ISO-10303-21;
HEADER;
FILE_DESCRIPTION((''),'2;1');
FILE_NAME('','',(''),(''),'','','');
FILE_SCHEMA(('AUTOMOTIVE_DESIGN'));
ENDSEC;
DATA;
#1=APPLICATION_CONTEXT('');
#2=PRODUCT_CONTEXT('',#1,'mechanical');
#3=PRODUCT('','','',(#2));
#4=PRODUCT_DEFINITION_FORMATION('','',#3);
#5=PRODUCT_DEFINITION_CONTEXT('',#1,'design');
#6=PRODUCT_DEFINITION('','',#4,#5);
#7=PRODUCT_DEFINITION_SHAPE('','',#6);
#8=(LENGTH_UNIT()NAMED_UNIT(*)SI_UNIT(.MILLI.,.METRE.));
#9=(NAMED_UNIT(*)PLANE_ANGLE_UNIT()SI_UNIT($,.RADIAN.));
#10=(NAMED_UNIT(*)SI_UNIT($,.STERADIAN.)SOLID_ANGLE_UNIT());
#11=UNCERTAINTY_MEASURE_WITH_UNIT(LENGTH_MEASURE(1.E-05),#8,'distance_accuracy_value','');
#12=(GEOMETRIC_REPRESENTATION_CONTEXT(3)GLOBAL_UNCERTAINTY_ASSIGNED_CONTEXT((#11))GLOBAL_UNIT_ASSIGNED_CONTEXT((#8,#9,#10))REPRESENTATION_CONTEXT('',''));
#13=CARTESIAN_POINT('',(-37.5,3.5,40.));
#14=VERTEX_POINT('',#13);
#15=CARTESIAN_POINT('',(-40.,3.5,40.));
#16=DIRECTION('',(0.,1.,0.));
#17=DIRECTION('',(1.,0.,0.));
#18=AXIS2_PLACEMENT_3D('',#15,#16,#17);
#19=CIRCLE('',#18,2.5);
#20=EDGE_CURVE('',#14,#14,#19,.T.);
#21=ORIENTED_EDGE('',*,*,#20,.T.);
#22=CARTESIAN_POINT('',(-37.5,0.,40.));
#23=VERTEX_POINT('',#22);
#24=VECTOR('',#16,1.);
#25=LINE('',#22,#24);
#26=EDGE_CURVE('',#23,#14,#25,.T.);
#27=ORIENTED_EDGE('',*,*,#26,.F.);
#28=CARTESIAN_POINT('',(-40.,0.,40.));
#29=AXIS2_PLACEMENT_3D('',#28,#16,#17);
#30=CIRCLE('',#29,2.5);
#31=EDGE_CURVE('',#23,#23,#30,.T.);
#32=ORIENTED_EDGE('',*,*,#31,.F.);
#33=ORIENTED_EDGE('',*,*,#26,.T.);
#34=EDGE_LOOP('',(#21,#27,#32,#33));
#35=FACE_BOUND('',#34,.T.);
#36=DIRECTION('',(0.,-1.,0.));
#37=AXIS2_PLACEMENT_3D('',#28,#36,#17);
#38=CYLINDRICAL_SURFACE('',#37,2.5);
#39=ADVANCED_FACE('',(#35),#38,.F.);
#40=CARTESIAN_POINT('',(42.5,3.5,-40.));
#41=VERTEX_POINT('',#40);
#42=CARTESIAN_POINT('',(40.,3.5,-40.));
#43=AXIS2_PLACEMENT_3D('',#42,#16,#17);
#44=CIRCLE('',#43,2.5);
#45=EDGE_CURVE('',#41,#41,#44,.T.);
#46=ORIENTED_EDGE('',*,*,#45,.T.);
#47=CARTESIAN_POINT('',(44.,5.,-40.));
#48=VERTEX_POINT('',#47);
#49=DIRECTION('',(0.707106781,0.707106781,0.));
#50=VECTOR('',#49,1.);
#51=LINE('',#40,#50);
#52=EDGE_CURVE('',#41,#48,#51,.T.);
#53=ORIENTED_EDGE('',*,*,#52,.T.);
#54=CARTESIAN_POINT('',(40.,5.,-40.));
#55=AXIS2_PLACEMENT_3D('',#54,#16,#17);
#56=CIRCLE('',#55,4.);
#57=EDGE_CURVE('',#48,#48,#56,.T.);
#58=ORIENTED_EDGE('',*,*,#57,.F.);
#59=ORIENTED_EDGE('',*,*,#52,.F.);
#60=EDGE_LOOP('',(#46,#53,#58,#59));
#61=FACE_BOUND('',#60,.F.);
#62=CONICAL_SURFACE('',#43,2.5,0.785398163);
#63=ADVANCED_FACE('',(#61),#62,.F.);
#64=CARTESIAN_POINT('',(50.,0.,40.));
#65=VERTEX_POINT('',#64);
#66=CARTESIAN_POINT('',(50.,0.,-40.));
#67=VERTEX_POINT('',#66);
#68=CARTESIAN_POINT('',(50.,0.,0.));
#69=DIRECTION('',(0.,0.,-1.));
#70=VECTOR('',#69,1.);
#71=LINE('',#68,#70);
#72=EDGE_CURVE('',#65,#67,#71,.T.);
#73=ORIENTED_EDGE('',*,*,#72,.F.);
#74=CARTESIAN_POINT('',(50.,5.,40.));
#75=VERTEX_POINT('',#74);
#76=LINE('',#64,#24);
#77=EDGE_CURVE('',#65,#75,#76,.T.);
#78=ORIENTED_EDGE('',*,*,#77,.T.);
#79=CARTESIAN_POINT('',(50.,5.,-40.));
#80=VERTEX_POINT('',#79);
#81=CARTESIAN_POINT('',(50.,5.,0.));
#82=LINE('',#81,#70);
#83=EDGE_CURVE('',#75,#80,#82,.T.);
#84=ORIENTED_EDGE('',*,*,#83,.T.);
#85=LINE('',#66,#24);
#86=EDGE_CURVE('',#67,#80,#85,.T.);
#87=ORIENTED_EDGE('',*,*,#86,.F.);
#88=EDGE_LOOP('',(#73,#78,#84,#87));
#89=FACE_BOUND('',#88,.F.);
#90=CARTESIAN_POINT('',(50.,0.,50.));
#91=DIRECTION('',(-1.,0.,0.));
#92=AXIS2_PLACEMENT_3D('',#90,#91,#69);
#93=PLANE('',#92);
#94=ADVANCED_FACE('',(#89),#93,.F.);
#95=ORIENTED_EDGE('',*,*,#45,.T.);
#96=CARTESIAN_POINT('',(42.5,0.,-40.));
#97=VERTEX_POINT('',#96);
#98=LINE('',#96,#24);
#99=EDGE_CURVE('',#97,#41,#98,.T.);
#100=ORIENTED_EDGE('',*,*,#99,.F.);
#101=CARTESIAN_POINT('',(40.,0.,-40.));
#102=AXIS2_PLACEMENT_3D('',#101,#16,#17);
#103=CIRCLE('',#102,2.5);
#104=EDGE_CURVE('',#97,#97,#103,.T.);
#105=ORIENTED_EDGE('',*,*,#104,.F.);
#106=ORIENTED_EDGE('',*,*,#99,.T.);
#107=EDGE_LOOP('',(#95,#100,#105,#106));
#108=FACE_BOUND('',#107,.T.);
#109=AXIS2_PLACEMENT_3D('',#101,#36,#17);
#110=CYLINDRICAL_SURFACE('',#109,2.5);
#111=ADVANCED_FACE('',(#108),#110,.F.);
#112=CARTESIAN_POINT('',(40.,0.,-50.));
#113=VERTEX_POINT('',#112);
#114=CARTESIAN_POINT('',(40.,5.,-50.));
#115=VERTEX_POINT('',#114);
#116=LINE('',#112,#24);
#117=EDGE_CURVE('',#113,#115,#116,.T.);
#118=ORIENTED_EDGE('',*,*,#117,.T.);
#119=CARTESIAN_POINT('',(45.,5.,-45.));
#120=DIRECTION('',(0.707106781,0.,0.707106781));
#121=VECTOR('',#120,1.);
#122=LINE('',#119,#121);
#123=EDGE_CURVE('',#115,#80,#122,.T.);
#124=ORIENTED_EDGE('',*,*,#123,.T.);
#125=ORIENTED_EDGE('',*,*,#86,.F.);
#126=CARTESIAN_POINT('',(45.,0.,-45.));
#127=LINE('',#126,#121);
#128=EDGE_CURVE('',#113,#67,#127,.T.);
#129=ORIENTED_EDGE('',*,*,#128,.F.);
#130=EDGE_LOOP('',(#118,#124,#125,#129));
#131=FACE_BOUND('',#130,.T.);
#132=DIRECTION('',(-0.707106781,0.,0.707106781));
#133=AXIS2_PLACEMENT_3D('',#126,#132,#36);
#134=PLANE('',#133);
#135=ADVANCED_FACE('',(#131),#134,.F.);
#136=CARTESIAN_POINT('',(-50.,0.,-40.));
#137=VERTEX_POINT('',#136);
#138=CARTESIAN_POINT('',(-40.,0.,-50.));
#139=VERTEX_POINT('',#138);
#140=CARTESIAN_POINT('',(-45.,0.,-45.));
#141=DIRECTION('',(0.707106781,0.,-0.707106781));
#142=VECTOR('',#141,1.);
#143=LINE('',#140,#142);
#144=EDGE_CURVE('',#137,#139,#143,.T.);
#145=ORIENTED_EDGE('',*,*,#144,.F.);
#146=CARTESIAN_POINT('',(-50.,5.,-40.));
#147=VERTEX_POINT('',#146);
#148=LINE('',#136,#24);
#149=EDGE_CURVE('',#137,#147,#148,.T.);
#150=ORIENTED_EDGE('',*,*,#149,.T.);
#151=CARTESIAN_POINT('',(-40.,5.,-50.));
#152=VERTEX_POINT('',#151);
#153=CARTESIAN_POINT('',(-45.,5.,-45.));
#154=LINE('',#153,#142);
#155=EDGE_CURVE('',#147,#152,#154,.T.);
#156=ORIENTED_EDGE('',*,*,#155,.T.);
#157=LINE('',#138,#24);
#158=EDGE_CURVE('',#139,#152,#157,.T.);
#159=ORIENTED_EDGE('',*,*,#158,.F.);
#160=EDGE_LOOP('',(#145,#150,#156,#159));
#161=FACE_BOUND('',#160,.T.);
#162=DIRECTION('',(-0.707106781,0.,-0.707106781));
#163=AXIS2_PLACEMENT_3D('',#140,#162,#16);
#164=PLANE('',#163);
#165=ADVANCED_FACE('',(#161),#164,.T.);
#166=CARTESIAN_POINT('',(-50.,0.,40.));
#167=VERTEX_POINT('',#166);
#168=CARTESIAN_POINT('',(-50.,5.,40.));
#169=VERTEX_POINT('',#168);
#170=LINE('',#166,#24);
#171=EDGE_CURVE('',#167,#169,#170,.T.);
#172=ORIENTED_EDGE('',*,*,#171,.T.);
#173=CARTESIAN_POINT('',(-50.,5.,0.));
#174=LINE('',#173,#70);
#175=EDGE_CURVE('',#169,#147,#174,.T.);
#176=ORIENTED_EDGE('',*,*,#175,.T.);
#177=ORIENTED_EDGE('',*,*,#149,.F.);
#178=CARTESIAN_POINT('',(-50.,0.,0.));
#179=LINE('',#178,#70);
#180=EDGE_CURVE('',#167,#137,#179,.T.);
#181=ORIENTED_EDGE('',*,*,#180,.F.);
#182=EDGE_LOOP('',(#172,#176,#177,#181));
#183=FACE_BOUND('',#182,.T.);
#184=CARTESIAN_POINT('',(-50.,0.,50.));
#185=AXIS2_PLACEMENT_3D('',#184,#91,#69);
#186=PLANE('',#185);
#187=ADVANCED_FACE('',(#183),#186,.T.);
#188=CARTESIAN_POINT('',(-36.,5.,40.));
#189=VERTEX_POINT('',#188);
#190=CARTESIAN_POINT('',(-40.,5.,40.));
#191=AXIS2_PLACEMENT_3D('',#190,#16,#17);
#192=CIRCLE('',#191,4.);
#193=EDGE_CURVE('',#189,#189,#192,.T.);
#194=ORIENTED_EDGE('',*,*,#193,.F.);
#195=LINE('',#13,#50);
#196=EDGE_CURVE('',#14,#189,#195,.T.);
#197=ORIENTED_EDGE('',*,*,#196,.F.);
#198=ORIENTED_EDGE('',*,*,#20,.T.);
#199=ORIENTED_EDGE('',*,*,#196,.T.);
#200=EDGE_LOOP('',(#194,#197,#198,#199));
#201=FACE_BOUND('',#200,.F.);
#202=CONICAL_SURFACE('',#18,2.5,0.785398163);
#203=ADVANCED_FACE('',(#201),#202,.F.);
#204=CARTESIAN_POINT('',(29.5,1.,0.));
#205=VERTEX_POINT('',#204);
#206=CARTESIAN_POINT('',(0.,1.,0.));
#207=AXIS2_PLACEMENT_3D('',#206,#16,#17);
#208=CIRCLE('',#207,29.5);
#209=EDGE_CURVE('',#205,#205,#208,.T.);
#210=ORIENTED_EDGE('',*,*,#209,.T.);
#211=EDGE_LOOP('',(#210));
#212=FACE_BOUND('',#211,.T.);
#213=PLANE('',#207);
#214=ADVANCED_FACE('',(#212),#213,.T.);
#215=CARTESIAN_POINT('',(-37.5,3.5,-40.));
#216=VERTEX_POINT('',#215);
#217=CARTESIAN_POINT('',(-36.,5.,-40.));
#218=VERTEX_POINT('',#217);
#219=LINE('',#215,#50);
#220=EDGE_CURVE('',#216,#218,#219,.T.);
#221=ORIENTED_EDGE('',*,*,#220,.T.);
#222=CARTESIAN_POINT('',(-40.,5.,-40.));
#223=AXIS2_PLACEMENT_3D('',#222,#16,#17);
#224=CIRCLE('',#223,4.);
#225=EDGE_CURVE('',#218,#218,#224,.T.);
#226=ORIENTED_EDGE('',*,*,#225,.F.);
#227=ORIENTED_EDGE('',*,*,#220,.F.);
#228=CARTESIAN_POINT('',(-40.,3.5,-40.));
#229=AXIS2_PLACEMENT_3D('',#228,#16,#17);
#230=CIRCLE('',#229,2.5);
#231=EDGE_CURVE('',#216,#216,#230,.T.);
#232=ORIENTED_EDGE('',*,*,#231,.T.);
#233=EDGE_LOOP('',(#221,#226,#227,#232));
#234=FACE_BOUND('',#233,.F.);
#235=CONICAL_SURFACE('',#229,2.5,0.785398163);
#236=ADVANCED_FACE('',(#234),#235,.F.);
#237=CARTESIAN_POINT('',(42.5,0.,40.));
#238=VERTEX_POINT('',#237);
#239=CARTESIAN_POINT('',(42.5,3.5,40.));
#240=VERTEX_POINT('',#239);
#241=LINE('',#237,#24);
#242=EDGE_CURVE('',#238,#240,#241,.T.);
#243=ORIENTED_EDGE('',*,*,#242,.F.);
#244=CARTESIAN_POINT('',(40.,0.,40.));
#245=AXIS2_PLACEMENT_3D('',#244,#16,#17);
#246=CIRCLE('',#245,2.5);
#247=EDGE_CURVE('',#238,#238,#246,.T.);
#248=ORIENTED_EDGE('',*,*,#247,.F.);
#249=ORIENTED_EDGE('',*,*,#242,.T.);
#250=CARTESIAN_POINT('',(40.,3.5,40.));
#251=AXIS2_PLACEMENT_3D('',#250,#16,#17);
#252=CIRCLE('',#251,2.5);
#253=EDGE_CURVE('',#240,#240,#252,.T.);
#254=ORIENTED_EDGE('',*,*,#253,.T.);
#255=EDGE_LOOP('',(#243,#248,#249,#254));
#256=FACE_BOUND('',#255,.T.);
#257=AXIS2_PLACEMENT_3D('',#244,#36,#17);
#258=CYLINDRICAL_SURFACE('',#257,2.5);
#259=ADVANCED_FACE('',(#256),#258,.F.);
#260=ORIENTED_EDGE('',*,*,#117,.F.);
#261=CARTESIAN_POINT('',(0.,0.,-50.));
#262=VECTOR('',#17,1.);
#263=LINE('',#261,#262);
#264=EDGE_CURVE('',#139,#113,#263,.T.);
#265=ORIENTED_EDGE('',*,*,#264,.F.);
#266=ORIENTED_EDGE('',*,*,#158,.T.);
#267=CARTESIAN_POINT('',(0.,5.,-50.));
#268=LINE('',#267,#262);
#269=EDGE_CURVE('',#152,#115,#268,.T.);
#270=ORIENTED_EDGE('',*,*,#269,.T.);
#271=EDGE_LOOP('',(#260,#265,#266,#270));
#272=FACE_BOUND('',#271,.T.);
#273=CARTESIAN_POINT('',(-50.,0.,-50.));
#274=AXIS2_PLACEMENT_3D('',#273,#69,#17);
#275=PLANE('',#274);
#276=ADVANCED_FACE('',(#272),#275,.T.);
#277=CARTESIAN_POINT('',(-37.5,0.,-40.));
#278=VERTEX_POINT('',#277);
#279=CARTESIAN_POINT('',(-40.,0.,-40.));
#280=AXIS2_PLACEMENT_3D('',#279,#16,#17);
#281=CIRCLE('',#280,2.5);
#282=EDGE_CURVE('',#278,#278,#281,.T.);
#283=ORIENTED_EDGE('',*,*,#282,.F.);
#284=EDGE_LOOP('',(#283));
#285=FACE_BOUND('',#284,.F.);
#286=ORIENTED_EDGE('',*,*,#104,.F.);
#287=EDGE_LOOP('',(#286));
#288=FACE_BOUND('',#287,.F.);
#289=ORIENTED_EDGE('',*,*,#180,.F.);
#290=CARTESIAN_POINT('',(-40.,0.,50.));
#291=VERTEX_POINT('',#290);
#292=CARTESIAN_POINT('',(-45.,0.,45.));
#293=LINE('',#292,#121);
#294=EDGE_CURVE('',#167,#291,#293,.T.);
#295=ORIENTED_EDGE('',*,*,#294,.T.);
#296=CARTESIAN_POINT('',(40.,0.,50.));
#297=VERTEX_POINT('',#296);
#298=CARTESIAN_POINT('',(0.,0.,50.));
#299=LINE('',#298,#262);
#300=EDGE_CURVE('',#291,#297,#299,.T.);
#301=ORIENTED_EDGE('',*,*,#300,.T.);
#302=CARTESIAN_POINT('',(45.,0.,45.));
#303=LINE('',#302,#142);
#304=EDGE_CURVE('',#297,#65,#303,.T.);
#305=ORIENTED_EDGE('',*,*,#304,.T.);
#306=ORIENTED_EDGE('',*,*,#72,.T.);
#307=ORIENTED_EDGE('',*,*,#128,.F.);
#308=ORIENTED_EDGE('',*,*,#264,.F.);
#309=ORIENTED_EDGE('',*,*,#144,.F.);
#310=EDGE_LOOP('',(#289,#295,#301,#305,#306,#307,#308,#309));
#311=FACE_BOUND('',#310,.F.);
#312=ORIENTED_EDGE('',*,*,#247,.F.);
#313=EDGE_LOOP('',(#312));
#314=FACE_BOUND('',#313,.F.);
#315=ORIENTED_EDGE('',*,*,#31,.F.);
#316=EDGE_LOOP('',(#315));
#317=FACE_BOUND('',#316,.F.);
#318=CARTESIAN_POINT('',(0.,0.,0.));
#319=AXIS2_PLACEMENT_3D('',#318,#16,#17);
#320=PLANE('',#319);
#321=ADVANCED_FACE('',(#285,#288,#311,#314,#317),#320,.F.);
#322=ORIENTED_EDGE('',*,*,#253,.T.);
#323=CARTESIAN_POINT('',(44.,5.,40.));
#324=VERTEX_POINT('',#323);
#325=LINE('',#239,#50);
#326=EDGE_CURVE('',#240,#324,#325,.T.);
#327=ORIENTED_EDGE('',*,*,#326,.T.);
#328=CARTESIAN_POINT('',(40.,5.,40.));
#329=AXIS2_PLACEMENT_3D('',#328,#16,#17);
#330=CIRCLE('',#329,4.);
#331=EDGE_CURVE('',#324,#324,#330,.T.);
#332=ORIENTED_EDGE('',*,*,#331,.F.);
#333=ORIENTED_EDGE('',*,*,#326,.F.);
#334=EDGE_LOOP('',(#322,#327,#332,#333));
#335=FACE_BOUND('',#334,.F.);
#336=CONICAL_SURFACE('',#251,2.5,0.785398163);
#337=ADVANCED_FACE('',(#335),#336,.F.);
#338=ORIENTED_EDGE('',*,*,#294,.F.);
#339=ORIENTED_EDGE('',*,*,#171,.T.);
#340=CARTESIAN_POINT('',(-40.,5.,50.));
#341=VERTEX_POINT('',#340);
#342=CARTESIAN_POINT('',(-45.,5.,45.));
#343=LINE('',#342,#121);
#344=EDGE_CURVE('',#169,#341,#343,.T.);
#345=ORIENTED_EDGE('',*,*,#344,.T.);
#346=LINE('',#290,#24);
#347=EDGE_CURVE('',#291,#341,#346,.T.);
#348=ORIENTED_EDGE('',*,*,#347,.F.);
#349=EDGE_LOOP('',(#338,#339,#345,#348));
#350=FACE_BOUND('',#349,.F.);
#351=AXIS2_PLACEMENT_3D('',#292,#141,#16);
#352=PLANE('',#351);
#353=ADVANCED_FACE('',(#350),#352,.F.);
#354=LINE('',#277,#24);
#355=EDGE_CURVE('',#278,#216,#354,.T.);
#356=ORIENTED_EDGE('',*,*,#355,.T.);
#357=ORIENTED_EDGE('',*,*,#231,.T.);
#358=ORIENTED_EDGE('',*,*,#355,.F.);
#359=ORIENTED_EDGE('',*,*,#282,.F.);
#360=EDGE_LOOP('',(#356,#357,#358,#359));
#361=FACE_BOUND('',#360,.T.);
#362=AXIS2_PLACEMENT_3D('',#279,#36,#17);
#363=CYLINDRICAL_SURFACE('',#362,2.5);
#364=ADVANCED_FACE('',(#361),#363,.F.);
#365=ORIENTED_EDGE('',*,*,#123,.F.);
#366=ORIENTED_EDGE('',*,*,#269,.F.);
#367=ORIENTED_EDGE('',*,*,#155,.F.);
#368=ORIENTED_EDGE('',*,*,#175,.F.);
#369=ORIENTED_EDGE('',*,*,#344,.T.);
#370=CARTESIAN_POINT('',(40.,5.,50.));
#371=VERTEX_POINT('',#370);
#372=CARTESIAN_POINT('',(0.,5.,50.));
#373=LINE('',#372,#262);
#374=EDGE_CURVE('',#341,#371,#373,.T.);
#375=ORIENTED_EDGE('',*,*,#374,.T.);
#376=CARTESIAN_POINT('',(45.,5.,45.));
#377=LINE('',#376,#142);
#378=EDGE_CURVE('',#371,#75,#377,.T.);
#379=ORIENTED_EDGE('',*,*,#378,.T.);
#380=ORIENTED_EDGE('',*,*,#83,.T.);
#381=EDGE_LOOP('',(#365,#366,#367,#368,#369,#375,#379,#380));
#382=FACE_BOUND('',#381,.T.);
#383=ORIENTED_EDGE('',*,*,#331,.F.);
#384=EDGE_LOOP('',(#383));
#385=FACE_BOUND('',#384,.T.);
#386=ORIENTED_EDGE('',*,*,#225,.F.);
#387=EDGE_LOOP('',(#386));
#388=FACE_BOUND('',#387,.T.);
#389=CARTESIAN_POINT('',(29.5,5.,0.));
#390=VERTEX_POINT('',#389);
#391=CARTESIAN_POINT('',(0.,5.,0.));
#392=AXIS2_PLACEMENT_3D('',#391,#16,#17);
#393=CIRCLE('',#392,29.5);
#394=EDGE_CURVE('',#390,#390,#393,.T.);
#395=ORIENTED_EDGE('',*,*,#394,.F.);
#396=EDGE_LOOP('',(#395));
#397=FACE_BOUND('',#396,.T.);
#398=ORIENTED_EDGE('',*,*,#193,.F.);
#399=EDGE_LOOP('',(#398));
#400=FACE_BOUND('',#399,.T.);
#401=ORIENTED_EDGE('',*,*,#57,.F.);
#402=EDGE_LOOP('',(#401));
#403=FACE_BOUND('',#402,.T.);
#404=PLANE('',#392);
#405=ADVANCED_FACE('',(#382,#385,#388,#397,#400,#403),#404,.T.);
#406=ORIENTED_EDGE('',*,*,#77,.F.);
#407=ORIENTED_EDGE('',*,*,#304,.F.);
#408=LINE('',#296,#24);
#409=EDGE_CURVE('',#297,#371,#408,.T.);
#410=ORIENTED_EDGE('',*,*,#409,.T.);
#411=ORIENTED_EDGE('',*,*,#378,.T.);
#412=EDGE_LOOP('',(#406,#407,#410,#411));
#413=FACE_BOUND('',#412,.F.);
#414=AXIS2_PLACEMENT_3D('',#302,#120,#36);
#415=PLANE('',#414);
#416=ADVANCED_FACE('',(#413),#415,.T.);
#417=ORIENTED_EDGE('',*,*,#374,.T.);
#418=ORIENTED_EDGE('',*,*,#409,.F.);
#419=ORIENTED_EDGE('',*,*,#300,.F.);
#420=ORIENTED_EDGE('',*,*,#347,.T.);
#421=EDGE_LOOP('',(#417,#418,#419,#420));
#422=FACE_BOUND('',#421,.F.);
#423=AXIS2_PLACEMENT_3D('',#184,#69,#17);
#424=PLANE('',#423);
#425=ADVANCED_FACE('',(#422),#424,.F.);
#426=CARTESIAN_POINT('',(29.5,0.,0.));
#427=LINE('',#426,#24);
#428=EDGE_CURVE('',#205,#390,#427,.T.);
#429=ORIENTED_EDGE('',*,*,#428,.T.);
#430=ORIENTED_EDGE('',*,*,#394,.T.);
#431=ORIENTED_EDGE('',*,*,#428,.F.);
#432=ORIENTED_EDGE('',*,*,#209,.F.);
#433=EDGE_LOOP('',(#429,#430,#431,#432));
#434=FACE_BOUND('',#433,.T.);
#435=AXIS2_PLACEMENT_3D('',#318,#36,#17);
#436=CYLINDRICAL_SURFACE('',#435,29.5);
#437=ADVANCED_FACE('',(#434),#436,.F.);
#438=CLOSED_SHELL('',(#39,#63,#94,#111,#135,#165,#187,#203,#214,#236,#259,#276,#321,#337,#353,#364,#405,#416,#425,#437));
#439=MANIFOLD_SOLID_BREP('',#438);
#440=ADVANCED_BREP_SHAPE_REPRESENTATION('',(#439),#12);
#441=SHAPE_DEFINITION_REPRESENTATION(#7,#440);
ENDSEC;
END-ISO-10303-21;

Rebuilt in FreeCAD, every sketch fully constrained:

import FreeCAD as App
import Part
import Sketcher

V = App.Vector
Q = App.Units.Quantity


def edges_at(feature, points):
    """Names of the edges that pass closest to the given points."""
    edges = feature.Shape.Edges
    near = lambda p: min(range(len(edges)), key=lambda i: edges[i].distToShape(Part.Vertex(*p))[0])
    return sorted({f"Edge{near(p) + 1}" for p in points})


def add_polygon(sketch, points):
    """Adds a closed chain of lines whose ends are joined by coincident constraints."""
    first, n = sketch.GeometryCount, len(points)
    for a, b in zip(points, points[1:] + points[:1]):
        sketch.addGeometry(Part.LineSegment(App.Vector(*a, 0), App.Vector(*b, 0)), False)
    for i in range(n):
        sketch.addConstraint(Sketcher.Constraint("Coincident", first + i, 2, first + (i + 1) % n, 1))

doc = App.newDocument("Part")
body = doc.addObject("PartDesign::Body", "Body")

# Sketch on XZ plane
sketch1 = body.newObject("Sketcher::SketchObject", "Sketch")
sketch1.AttachmentSupport = (doc.getObject("XZ_Plane"), [""])
sketch1.MapMode = "FlatFace"
add_polygon(sketch1, [(-50, -50), (-50, 50), (50, 50), (50, -50)])  # lines 0-3
sketch1.addGeometry(Part.Circle(V(-40, 40, 0), V(0, 0, 1), 2.5), False)  # 4
sketch1.addGeometry(Part.Circle(V(40, 40, 0), V(0, 0, 1), 2.5), False)  # 5
sketch1.addGeometry(Part.Circle(V(-40, -40, 0), V(0, 0, 1), 2.5), False)  # 6
sketch1.addGeometry(Part.Circle(V(0, 0, 0), V(0, 0, 1), 29.5), False)  # 7
sketch1.addGeometry(Part.Circle(V(40, -40, 0), V(0, 0, 1), 2.5), False)  # 8
sketch1.addConstraint([
    Sketcher.Constraint("Vertical", 0),
    Sketcher.Constraint("Horizontal", 1),
    Sketcher.Constraint("Vertical", 2),
    Sketcher.Constraint("Horizontal", 3),
    Sketcher.Constraint("Coincident", 7, 3, -1, 1),
    Sketcher.Constraint("Equal", 4, 5),
    Sketcher.Constraint("Equal", 5, 6),
    Sketcher.Constraint("Equal", 6, 8),
    Sketcher.Constraint("Symmetric", 5, 3, 6, 3, -1, 1),
    Sketcher.Constraint("Symmetric", 4, 3, 8, 3, -1, 1),
    Sketcher.Constraint("Symmetric", 0, 2, 2, 2, -1, 1),
    Sketcher.Constraint("Symmetric", 4, 3, 5, 3, -2),
    Sketcher.Constraint("Equal", 3, 0),
    Sketcher.Constraint("Diameter", 4, Q("5 mm")),
    Sketcher.Constraint("Diameter", 7, Q("59 mm")),
    Sketcher.Constraint("DistanceX", 1, 1, 1, 2, Q("100 mm")),
    Sketcher.Constraint("DistanceX", 4, 3, -1, 1, Q("40 mm")),
    Sketcher.Constraint("DistanceY", -1, 1, 4, 3, Q("40 mm")),
])
pad1 = body.newObject("PartDesign::Pad", "Pad")
pad1.Profile = sketch1
pad1.Length = 5
pad1.Reversed = True

# Sketch on XZ plane
sketch2 = body.newObject("Sketcher::SketchObject", "Sketch001")
sketch2.AttachmentSupport = (doc.getObject("XZ_Plane"), [""])
sketch2.MapMode = "FlatFace"
sketch2.addGeometry(Part.Circle(V(0, 0, 0), V(0, 0, 1), 30), False)
sketch2.addConstraint([
    Sketcher.Constraint("Coincident", 0, 3, -1, 1),
    Sketcher.Constraint("Diameter", 0, Q("59 mm")),
])
pad2 = body.newObject("PartDesign::Pad", "Pad001")
pad2.Profile = sketch2
pad2.Length = 1
pad2.Reversed = True
doc.recompute()

chamfer = body.newObject("PartDesign::Chamfer", "Chamfer")
chamfer.Base = (pad2, edges_at(pad2, [
    (-50, 2.5, 50),
    (-50, 2.5, -50),
    (50, 2.5, -50),
    (50, 2.5, 50),
]))
chamfer.Size = 10
doc.recompute()

chamfer2 = body.newObject("PartDesign::Chamfer", "Chamfer001")
chamfer2.Base = (chamfer, edges_at(chamfer, [
    (37.5, 5, 40),
    (-42.5, 5, -40),
    (37.5, 5, -40),
    (-42.5, 5, 40),
]))
chamfer2.Size = 1.5

doc.recompute()
